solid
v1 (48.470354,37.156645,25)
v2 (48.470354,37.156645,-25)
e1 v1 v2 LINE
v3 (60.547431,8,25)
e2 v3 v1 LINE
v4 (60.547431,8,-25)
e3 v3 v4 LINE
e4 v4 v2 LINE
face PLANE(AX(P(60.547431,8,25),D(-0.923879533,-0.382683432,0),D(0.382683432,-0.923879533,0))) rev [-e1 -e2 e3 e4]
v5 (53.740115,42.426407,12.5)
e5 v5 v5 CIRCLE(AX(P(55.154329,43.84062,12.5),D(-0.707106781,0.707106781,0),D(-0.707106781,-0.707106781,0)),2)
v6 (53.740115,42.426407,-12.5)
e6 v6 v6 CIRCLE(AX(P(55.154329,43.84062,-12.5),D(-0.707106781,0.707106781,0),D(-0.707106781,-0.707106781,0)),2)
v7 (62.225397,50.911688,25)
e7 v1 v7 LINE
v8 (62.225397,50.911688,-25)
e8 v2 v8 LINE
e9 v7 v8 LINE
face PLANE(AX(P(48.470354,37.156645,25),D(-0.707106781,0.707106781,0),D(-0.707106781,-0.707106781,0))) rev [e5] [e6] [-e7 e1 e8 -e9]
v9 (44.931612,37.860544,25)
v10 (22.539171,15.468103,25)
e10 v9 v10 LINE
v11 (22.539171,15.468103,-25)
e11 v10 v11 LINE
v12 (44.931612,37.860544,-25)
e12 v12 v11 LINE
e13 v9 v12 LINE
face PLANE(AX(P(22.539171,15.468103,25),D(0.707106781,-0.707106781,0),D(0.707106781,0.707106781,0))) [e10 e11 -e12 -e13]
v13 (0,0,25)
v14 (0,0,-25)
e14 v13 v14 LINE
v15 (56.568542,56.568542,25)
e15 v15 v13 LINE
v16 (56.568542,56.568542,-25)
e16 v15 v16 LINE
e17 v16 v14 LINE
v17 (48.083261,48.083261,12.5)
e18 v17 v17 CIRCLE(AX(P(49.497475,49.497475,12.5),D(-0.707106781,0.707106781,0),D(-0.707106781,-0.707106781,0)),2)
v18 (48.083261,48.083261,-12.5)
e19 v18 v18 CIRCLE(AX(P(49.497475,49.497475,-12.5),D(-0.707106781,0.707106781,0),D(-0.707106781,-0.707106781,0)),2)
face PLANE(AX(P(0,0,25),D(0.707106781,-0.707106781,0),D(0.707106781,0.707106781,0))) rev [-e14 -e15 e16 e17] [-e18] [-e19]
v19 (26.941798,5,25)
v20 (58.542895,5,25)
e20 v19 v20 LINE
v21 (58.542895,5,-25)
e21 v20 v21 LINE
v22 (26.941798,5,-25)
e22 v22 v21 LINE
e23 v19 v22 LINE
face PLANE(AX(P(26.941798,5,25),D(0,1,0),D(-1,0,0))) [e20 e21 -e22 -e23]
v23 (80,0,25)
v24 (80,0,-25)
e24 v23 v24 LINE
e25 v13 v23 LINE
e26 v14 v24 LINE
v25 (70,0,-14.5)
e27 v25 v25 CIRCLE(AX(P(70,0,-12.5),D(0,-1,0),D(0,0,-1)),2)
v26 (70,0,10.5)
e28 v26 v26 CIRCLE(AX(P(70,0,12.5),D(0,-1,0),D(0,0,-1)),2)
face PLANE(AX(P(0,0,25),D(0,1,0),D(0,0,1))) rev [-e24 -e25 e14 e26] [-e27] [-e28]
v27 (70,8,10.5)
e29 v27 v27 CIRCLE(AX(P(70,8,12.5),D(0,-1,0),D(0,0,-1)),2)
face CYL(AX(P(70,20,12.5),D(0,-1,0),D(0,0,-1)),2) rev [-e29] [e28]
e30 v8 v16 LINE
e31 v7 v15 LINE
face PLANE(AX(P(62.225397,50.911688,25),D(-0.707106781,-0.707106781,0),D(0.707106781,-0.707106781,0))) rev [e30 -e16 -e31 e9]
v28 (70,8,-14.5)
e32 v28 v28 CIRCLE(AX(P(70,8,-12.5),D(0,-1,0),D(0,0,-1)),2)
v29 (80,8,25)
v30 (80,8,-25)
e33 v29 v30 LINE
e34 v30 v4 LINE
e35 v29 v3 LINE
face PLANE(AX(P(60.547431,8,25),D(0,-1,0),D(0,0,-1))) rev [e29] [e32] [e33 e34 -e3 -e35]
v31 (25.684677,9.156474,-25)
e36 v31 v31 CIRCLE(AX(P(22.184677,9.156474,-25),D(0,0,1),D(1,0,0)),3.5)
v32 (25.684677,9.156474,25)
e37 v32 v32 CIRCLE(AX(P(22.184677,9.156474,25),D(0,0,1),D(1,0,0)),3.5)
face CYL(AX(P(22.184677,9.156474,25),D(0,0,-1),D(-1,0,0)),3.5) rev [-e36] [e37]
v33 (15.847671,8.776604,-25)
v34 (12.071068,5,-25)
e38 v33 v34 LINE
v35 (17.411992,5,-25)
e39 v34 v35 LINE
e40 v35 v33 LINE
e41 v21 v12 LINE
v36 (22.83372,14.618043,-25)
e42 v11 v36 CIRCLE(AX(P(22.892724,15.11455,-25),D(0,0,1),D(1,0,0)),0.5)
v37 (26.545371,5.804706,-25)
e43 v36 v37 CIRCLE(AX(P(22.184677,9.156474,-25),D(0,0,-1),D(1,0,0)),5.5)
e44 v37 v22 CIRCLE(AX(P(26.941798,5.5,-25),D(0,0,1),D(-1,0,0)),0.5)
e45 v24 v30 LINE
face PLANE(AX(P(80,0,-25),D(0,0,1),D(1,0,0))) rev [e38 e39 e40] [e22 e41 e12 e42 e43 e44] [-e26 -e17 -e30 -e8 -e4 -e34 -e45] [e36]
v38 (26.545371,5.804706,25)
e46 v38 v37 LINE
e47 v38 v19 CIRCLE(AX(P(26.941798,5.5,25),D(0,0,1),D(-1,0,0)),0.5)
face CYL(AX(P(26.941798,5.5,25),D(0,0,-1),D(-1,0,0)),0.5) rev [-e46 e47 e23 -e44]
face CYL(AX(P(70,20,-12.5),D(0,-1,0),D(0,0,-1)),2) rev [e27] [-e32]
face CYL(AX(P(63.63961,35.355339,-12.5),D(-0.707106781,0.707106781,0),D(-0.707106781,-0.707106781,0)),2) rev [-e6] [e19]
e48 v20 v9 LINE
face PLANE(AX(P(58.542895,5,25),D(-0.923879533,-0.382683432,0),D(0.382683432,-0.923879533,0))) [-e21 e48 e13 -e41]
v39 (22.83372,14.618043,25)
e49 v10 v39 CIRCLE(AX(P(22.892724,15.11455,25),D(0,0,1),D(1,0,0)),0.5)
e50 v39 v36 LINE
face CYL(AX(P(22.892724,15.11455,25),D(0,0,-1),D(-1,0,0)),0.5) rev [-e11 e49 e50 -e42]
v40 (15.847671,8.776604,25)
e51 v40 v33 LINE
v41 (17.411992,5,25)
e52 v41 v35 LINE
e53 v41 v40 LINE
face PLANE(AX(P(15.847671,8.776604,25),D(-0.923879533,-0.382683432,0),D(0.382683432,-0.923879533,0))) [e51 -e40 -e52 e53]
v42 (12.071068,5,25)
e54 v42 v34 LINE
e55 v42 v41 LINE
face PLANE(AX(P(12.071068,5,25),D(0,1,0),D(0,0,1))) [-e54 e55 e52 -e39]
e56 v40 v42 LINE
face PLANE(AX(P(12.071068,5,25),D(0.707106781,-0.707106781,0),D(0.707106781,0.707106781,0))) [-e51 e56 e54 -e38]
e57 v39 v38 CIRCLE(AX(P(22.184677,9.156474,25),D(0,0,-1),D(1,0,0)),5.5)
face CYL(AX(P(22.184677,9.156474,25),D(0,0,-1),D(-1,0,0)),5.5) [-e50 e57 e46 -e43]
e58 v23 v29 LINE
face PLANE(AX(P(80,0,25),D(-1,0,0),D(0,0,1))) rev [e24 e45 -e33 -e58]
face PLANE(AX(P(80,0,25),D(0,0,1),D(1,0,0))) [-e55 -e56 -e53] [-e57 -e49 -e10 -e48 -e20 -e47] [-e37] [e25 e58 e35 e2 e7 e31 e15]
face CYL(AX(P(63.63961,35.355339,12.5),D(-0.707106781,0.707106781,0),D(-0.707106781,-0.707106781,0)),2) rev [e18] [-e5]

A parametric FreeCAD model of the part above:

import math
import FreeCAD as App
import Part
import Sketcher
Q = App.Units.Quantity

doc = App.newDocument("Part")
body = doc.addObject("PartDesign::Body", "Body")

sketch1 = doc.addObject("Sketcher::SketchObject", "Sketch")
body.addObject(sketch1)
sketch1.AttachmentSupport = (doc.XY_Plane, [""])
sketch1.MapMode = "FlatFace"
sketch1.addGeometry(Part.LineSegment(App.Vector(56.568542, 56.568542, 0), App.Vector(0, 0, 0)), False)
sketch1.addGeometry(Part.LineSegment(App.Vector(0, 0, 0), App.Vector(80, 0, 0)), False)
sketch1.addGeometry(Part.LineSegment(App.Vector(80, 0, 0), App.Vector(80, 8, 0)), False)
sketch1.addGeometry(Part.LineSegment(App.Vector(80, 8, 0), App.Vector(60.547431, 8, 0)), False)
sketch1.addGeometry(Part.LineSegment(App.Vector(60.547431, 8, 0), App.Vector(48.470354, 37.156645, 0)), False)
sketch1.addGeometry(Part.LineSegment(App.Vector(48.470354, 37.156645, 0), App.Vector(62.225397, 50.911688, 0)), False)
sketch1.addGeometry(Part.LineSegment(App.Vector(62.225397, 50.911688, 0), App.Vector(56.568542, 56.568542, 0)), False)
sketch1.addGeometry(Part.LineSegment(App.Vector(12.071068, 5, 0), App.Vector(15.847671, 8.776604, 0)), False)
sketch1.addGeometry(Part.LineSegment(App.Vector(15.847671, 8.776604, 0), App.Vector(17.411992, 5, 0)), False)
sketch1.addGeometry(Part.LineSegment(App.Vector(17.411992, 5, 0), App.Vector(12.071068, 5, 0)), False)
sketch1.addGeometry(Part.Circle(App.Vector(22.184677, 9.156474, 0), App.Vector(0, 0, 1), 3.5), False)
sketch1.addGeometry(Part.LineSegment(App.Vector(22.539171, 15.468103, 0), App.Vector(44.931612, 37.860544, 0)), False)
sketch1.addGeometry(Part.LineSegment(App.Vector(44.931612, 37.860544, 0), App.Vector(58.542895, 5, 0)), False)
sketch1.addGeometry(Part.LineSegment(App.Vector(58.542895, 5, 0), App.Vector(26.941798, 5, 0)), False)
sketch1.addGeometry(Part.ArcOfCircle(Part.Circle(App.Vector(26.941798, 5.5, 0), App.Vector(0, 0, 1), 0.5), math.radians(142.45298), math.radians(270)), False)
sketch1.addGeometry(Part.ArcOfCircle(Part.Circle(App.Vector(22.184677, 9.156474, 0), App.Vector(0, 0, 1), 5.5), math.radians(-37.54702), math.radians(83.222856)), False)
sketch1.addGeometry(Part.ArcOfCircle(Part.Circle(App.Vector(22.892724, 15.11455, 0), App.Vector(0, 0, 1), 0.5), math.radians(135), math.radians(263.222856)), False)
sketch1.addConstraint(Sketcher.Constraint("Coincident", 0, 2, 1, 1))
sketch1.addConstraint(Sketcher.Constraint("Coincident", 1, 2, 2, 1))
sketch1.addConstraint(Sketcher.Constraint("Coincident", 2, 2, 3, 1))
sketch1.addConstraint(Sketcher.Constraint("Coincident", 3, 2, 4, 1))
sketch1.addConstraint(Sketcher.Constraint("Coincident", 4, 2, 5, 1))
sketch1.addConstraint(Sketcher.Constraint("Coincident", 5, 2, 6, 1))
sketch1.addConstraint(Sketcher.Constraint("Coincident", 6, 2, 0, 1))
sketch1.addConstraint(Sketcher.Constraint("Coincident", 7, 2, 8, 1))
sketch1.addConstraint(Sketcher.Constraint("Coincident", 8, 2, 9, 1))
sketch1.addConstraint(Sketcher.Constraint("Coincident", 9, 2, 7, 1))
sketch1.addConstraint(Sketcher.Constraint("Coincident", 11, 2, 12, 1))
sketch1.addConstraint(Sketcher.Constraint("Coincident", 12, 2, 13, 1))
sketch1.addConstraint(Sketcher.Constraint("Tangent", 13, 2, 14, 2))
sketch1.addConstraint(Sketcher.Constraint("Tangent", 14, 1, 15, 1))
sketch1.addConstraint(Sketcher.Constraint("Tangent", 15, 2, 16, 2))
sketch1.addConstraint(Sketcher.Constraint("Tangent", 16, 1, 11, 1))
sketch1.addConstraint(Sketcher.Constraint("Horizontal", 1))
sketch1.addConstraint(Sketcher.Constraint("Vertical", 2))
sketch1.addConstraint(Sketcher.Constraint("Horizontal", 3))
sketch1.addConstraint(Sketcher.Constraint("Horizontal", 9))
sketch1.addConstraint(Sketcher.Constraint("Horizontal", 13))
sketch1.addConstraint(Sketcher.Constraint("Coincident", 0, 2, -1, 1))
sketch1.addConstraint(Sketcher.Constraint("Coincident", 15, 3, 10, 3))
sketch1.addConstraint(Sketcher.Constraint("Equal", 14, 16))
sketch1.addConstraint(Sketcher.Constraint("Parallel", 0, 5))
sketch1.addConstraint(Sketcher.Constraint("Perpendicular", 5, 6))
sketch1.addConstraint(Sketcher.Constraint("Perpendicular", 6, 7))
sketch1.addConstraint(Sketcher.Constraint("Parallel", 4, 8))
sketch1.addConstraint(Sketcher.Constraint("Parallel", 7, 11))
sketch1.addConstraint(Sketcher.Constraint("Parallel", 8, 12))
sketch1.addConstraint(Sketcher.Constraint("Horizontal", 9, 2, 12, 2))
sketch1.addConstraint(Sketcher.Constraint("Diameter", 10, 7.0))
sketch1.addConstraint(Sketcher.Constraint("Radius", 14, 0.5))
sketch1.addConstraint(Sketcher.Constraint("Radius", 15, 5.5))
sketch1.addConstraint(Sketcher.Constraint("DistanceX", 1, 1, 1, 2, 80.0))
sketch1.addConstraint(Sketcher.Constraint("DistanceY", 2, 1, 2, 2, 8.0))
sketch1.addConstraint(Sketcher.Constraint("Angle", 0, Q("-135 deg")))
sketch1.addConstraint(Sketcher.Constraint("Distance", 0, 80.0))
sketch1.addConstraint(Sketcher.Constraint("Distance", 6, 8.0))
sketch1.addConstraint(Sketcher.Constraint("DistanceY", -1, 1, 8, 2, 5.0))
sketch1.addConstraint(Sketcher.Constraint("Angle", 4, Q("112.5 deg")))
sketch1.addConstraint(Sketcher.Constraint("DistanceY", 11, 2, 6, 2, 18.707998))
sketch1.addConstraint(Sketcher.Constraint("DistanceX", 3, 2, 3, 1, 19.452569))
sketch1.addConstraint(Sketcher.Constraint("DistanceX", -1, 1, 14, 3, 26.941798))
sketch1.addConstraint(Sketcher.Constraint("DistanceX", 7, 2, 16, 1, 6.6915))
sketch1.addConstraint(Sketcher.Constraint("DistanceY", 7, 2, 16, 1, 6.6915))
sketch1.addConstraint(Sketcher.Constraint("DistanceX", 9, 2, 9, 1, 5.340924))
sketch1.addConstraint(Sketcher.Constraint("DistanceX", 13, 2, 13, 1, 31.601097))
pad1 = doc.addObject("PartDesign::Pad", "Pad")
body.addObject(pad1)
pad1.Profile = sketch1
pad1.Length = 50
pad1.Midplane = True

sketch2 = doc.addObject("Sketcher::SketchObject", "Sketch001")
body.addObject(sketch2)
sketch2.Placement = App.Placement(App.Vector(0, 0, 0), App.Rotation(App.Vector(0, 0, 1), App.Vector(0.707106781, 0.707106781, 0), App.Vector(-0.707106781, 0.707106781, 0), "ZXY"))
sketch2.addGeometry(Part.Circle(App.Vector(-12.5, 70, 0), App.Vector(0, 0, 1), 2), False)
sketch2.addGeometry(Part.Circle(App.Vector(12.5, 70, 0), App.Vector(0, 0, 1), 2), False)
sketch2.addConstraint(Sketcher.Constraint("Equal", 0, 1))
sketch2.addConstraint(Sketcher.Constraint("Symmetric", 0, 3, 1, 3, -2))
sketch2.addConstraint(Sketcher.Constraint("Diameter", 0, 4.0))
sketch2.addConstraint(Sketcher.Constraint("DistanceY", -1, 1, 0, 3, 70.0))
sketch2.addConstraint(Sketcher.Constraint("DistanceX", 0, 3, 1, 3, 25.0))
pocket1 = doc.addObject("PartDesign::Pocket", "Pocket")
body.addObject(pocket1)
pocket1.Profile = sketch2
pocket1.Length = 20

sketch3 = doc.addObject("Sketcher::SketchObject", "Sketch002")
body.addObject(sketch3)
sketch3.AttachmentSupport = (doc.XZ_Plane, [""])
sketch3.MapMode = "FlatFace"
sketch3.addGeometry(Part.Circle(App.Vector(70, 12.5, 0), App.Vector(0, 0, 1), 2), False)
sketch3.addGeometry(Part.Circle(App.Vector(70, -12.5, 0), App.Vector(0, 0, 1), 2), False)
sketch3.addConstraint(Sketcher.Constraint("Equal", 0, 1))
sketch3.addConstraint(Sketcher.Constraint("Symmetric", 0, 3, 1, 3, -1))
sketch3.addConstraint(Sketcher.Constraint("Diameter", 0, 4.0))
sketch3.addConstraint(Sketcher.Constraint("DistanceX", -1, 1, 0, 3, 70.0))
sketch3.addConstraint(Sketcher.Constraint("DistanceY", 1, 3, 0, 3, 25.0))
pocket2 = doc.addObject("PartDesign::Pocket", "Pocket001")
body.addObject(pocket2)
pocket2.Profile = sketch3
pocket2.Length = 20

doc.recompute()
